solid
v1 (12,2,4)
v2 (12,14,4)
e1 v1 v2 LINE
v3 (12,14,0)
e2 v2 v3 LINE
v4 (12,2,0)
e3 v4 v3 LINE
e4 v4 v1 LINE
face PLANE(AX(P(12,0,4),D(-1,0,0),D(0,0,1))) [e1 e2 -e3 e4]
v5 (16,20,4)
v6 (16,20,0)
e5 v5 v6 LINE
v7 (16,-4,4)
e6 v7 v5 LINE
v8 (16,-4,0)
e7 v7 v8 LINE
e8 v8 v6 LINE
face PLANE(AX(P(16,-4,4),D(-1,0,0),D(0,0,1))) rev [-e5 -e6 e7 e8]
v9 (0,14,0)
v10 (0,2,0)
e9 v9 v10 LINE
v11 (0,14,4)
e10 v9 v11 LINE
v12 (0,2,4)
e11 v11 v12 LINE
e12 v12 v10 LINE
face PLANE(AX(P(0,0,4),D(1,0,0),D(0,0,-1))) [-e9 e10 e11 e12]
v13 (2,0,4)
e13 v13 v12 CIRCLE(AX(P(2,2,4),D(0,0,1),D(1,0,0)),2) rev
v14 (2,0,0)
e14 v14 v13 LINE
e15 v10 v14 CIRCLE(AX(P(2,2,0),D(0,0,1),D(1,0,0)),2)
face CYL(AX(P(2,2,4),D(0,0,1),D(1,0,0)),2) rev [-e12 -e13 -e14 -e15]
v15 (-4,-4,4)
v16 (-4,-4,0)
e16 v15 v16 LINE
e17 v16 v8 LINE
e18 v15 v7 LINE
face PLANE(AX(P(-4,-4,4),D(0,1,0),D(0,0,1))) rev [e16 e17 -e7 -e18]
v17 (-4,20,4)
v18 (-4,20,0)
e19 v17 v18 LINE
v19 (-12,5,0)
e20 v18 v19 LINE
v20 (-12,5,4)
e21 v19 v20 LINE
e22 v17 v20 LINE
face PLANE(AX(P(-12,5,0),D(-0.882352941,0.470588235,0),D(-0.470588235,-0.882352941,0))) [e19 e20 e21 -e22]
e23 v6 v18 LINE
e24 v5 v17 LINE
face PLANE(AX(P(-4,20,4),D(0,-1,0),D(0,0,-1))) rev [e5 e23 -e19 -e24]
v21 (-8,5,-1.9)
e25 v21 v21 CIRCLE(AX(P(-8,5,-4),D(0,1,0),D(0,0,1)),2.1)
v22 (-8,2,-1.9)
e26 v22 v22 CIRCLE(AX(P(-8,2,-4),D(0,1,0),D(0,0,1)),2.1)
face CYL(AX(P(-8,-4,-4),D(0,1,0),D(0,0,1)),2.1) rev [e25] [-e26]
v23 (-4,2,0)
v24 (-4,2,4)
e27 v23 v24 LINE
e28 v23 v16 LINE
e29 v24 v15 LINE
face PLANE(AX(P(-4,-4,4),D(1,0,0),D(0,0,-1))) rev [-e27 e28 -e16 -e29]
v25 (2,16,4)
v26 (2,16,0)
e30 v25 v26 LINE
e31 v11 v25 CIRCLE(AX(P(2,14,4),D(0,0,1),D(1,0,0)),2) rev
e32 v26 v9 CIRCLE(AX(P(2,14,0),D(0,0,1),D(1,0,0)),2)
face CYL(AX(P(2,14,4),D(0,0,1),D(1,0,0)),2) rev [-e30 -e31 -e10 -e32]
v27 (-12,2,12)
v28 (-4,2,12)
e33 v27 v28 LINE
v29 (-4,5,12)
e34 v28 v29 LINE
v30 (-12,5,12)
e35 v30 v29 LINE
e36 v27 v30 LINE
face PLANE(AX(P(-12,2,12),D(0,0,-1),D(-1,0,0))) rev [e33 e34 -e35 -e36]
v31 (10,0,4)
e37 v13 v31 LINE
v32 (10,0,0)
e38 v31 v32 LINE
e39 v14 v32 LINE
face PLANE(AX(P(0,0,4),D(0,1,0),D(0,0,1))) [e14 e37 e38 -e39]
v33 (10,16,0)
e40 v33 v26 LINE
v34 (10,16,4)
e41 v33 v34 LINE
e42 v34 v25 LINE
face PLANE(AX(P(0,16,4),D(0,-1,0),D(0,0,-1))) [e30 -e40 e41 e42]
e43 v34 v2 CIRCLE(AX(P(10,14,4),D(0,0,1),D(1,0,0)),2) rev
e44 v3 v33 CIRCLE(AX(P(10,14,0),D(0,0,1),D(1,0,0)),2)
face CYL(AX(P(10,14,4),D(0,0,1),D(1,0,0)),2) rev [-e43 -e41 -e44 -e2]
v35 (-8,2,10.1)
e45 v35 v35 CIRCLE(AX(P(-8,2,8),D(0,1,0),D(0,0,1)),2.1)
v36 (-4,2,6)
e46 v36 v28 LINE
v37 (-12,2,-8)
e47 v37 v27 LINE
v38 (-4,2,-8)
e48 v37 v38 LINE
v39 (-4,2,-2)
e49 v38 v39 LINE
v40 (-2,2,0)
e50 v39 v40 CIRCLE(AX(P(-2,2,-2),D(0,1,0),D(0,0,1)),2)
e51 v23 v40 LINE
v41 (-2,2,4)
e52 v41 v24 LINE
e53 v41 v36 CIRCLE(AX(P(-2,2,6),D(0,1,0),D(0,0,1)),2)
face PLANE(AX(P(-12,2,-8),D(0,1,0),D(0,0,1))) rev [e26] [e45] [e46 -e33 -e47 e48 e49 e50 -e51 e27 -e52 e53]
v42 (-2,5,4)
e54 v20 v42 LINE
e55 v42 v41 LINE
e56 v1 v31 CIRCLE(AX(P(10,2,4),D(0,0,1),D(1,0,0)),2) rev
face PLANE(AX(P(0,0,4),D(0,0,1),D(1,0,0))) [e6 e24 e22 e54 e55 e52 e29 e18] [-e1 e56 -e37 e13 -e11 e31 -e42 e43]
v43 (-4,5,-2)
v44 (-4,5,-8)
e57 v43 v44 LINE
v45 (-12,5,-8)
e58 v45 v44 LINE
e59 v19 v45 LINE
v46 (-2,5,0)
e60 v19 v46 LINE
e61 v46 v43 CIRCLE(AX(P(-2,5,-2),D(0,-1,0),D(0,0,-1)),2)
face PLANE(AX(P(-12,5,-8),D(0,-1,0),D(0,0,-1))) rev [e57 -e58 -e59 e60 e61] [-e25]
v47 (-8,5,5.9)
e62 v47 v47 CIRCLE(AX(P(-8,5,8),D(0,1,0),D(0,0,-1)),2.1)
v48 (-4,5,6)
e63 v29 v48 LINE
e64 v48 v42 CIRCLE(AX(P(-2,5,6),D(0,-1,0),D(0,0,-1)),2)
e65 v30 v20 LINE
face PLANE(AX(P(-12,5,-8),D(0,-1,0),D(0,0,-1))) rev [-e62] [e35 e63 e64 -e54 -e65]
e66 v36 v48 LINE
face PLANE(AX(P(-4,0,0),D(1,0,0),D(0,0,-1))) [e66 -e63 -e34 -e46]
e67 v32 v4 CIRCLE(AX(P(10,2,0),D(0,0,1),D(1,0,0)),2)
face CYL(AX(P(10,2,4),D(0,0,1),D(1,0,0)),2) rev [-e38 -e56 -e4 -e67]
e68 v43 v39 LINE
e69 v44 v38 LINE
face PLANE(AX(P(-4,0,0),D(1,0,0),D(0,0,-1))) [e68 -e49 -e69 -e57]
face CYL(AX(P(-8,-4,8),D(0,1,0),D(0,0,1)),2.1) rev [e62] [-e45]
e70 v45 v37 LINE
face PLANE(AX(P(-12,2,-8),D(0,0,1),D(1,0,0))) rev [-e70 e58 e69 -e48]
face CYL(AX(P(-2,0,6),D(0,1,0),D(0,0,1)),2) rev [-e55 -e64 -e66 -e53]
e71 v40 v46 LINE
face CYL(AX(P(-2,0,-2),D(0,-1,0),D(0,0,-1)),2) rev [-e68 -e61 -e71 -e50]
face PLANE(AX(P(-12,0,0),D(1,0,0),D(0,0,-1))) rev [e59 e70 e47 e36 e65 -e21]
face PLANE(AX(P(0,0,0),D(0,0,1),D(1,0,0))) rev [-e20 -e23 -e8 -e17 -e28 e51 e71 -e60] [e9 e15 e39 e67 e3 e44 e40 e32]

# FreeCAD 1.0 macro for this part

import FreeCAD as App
import Part
import Sketcher
from FreeCAD import Vector


def edges_at(feature, points):
    """Names of the edges that pass closest to the given points."""
    edges = feature.Shape.Edges
    near = lambda p: min(range(len(edges)), key=lambda i: edges[i].distToShape(Part.Vertex(*p))[0])
    return sorted({f"Edge{near(p) + 1}" for p in points})


def add_polygon(sketch, points):
    """Adds a closed chain of lines whose ends are joined by coincident constraints."""
    first, n = sketch.GeometryCount, len(points)
    for a, b in zip(points, points[1:] + points[:1]):
        sketch.addGeometry(Part.LineSegment(App.Vector(*a, 0), App.Vector(*b, 0)), False)
    for i in range(n):
        sketch.addConstraint(Sketcher.Constraint("Coincident", first + i, 2, first + (i + 1) % n, 1))

doc = App.newDocument("Part")
body = doc.addObject("PartDesign::Body", "Body")

# Sketch on XY plane
sketch1 = body.newObject("Sketcher::SketchObject", "Sketch")
sketch1.AttachmentSupport = (doc.getObject("XY_Plane"), [""])
sketch1.MapMode = "FlatFace"
add_polygon(sketch1, [(-4, 20), (-4, -4), (16, -4), (16, 20)])  # lines 0-3
add_polygon(sketch1, [(12, 0), (0, 0), (0, 16), (12, 16)])  # lines 4-7
sketch1.addConstraint([
    Sketcher.Constraint("Vertical", 0),
    Sketcher.Constraint("Horizontal", 1),
    Sketcher.Constraint("Vertical", 2),
    Sketcher.Constraint("Horizontal", 3),
    Sketcher.Constraint("Horizontal", 4),
    Sketcher.Constraint("Vertical", 5),
    Sketcher.Constraint("Horizontal", 6),
    Sketcher.Constraint("Vertical", 7),
    Sketcher.Constraint("Coincident", 4, 2, -1, 1),
    Sketcher.Constraint("DistanceX", 1, 1, 1, 2, 20.0),
    Sketcher.Constraint("DistanceX", 4, 2, 4, 1, 12.0),
    Sketcher.Constraint("DistanceY", 0, 2, 0, 1, 24.0),
    Sketcher.Constraint("DistanceY", 5, 1, 5, 2, 16.0),
    Sketcher.Constraint("DistanceX", 0, 2, -1, 1, 4.0),
    Sketcher.Constraint("DistanceY", 0, 2, -1, 1, 4.0),
])
pad1 = body.newObject("PartDesign::Pad", "Pad")
pad1.Profile = sketch1
pad1.Length = 4

# Sketch on YZ plane
sketch2 = body.newObject("Sketcher::SketchObject", "Sketch001")
sketch2.AttachmentSupport = (doc.getObject("YZ_Plane"), [""])
sketch2.MapMode = "FlatFace"
sketch2.AttachmentOffset = App.Placement(Vector(0, 0, -4), App.Rotation())
add_polygon(sketch2, [(5, -8), (2, -8), (2, 12), (5, 12)])  # lines 0-3
sketch2.addConstraint([
    Sketcher.Constraint("Horizontal", 0),
    Sketcher.Constraint("Vertical", 1),
    Sketcher.Constraint("Horizontal", 2),
    Sketcher.Constraint("Vertical", 3),
    Sketcher.Constraint("DistanceX", 0, 2, 0, 1, 3.0),
    Sketcher.Constraint("DistanceY", 1, 1, 1, 2, 20.0),
    Sketcher.Constraint("DistanceX", -1, 1, 0, 2, 2.0),
    Sketcher.Constraint("DistanceY", 0, 2, -1, 1, 8.0),
])
pad2 = body.newObject("PartDesign::Pad", "Pad001")
pad2.Profile = sketch2
pad2.Length = 8
pad2.Reversed = True

# Sketch on XY plane
sketch3 = body.newObject("Sketcher::SketchObject", "Sketch002")
sketch3.AttachmentSupport = (doc.getObject("XY_Plane"), [""])
sketch3.MapMode = "FlatFace"
sketch3.AttachmentOffset = App.Placement(Vector(0, 0, 4), App.Rotation())
add_polygon(sketch3, [(-4, 20), (-12, 5), (-4, 5)])  # lines 0-2
sketch3.addConstraint([
    Sketcher.Constraint("Horizontal", 1),
    Sketcher.Constraint("Vertical", 2),
    Sketcher.Constraint("DistanceX", 1, 1, 1, 2, 8.0),
    Sketcher.Constraint("DistanceY", 2, 1, 2, 2, 15.0),
    Sketcher.Constraint("DistanceX", 0, 2, -1, 1, 12.0),
    Sketcher.Constraint("DistanceY", -1, 1, 0, 2, 5.0),
])
pad3 = body.newObject("PartDesign::Pad", "Pad002")
pad3.Profile = sketch3
pad3.Length = 4
pad3.Reversed = True

# Sketch on XZ plane
sketch4 = body.newObject("Sketcher::SketchObject", "Sketch003")
sketch4.AttachmentSupport = (doc.getObject("XZ_Plane"), [""])
sketch4.MapMode = "FlatFace"
sketch4.AttachmentOffset = App.Placement(Vector(0, 0, -5), App.Rotation())
sketch4.addGeometry([
    Part.Circle(Vector(-8, -4, 0), Vector(0, 0, 1), 2.1),
    Part.Circle(Vector(-8, 8, 0), Vector(0, 0, 1), 2.1),
], False)
sketch4.addConstraint([
    Sketcher.Constraint("Equal", 0, 1),
    Sketcher.Constraint("Vertical", 0, 3, 1, 3),
    Sketcher.Constraint("Diameter", 0, 4.2),
    Sketcher.Constraint("DistanceX", 0, 3, -1, 1, 8.0),
    Sketcher.Constraint("DistanceY", 0, 3, -1, 1, 4.0),
    Sketcher.Constraint("DistanceY", -1, 1, 1, 3, 8.0),
])
pocket1 = body.newObject("PartDesign::Pocket", "Pocket")
pocket1.Profile = sketch4
pocket1.Type = "ThroughAll"
pocket1.Reversed = True
doc.recompute()

fillet = body.newObject("PartDesign::Fillet", "Fillet")
fillet.Base = (pocket1, edges_at(pocket1, [
    (0, 16, 2),
    (0, 0, 2),
    (12, 0, 2),
    (12, 16, 2),
]))
fillet.Radius = 2
doc.recompute()

fillet2 = body.newObject("PartDesign::Fillet", "Fillet001")
fillet2.Base = (fillet, edges_at(fillet, [(-4, 3.5, 0), (-4, 3.5, 4)]))
fillet2.Radius = 2

doc.recompute()
